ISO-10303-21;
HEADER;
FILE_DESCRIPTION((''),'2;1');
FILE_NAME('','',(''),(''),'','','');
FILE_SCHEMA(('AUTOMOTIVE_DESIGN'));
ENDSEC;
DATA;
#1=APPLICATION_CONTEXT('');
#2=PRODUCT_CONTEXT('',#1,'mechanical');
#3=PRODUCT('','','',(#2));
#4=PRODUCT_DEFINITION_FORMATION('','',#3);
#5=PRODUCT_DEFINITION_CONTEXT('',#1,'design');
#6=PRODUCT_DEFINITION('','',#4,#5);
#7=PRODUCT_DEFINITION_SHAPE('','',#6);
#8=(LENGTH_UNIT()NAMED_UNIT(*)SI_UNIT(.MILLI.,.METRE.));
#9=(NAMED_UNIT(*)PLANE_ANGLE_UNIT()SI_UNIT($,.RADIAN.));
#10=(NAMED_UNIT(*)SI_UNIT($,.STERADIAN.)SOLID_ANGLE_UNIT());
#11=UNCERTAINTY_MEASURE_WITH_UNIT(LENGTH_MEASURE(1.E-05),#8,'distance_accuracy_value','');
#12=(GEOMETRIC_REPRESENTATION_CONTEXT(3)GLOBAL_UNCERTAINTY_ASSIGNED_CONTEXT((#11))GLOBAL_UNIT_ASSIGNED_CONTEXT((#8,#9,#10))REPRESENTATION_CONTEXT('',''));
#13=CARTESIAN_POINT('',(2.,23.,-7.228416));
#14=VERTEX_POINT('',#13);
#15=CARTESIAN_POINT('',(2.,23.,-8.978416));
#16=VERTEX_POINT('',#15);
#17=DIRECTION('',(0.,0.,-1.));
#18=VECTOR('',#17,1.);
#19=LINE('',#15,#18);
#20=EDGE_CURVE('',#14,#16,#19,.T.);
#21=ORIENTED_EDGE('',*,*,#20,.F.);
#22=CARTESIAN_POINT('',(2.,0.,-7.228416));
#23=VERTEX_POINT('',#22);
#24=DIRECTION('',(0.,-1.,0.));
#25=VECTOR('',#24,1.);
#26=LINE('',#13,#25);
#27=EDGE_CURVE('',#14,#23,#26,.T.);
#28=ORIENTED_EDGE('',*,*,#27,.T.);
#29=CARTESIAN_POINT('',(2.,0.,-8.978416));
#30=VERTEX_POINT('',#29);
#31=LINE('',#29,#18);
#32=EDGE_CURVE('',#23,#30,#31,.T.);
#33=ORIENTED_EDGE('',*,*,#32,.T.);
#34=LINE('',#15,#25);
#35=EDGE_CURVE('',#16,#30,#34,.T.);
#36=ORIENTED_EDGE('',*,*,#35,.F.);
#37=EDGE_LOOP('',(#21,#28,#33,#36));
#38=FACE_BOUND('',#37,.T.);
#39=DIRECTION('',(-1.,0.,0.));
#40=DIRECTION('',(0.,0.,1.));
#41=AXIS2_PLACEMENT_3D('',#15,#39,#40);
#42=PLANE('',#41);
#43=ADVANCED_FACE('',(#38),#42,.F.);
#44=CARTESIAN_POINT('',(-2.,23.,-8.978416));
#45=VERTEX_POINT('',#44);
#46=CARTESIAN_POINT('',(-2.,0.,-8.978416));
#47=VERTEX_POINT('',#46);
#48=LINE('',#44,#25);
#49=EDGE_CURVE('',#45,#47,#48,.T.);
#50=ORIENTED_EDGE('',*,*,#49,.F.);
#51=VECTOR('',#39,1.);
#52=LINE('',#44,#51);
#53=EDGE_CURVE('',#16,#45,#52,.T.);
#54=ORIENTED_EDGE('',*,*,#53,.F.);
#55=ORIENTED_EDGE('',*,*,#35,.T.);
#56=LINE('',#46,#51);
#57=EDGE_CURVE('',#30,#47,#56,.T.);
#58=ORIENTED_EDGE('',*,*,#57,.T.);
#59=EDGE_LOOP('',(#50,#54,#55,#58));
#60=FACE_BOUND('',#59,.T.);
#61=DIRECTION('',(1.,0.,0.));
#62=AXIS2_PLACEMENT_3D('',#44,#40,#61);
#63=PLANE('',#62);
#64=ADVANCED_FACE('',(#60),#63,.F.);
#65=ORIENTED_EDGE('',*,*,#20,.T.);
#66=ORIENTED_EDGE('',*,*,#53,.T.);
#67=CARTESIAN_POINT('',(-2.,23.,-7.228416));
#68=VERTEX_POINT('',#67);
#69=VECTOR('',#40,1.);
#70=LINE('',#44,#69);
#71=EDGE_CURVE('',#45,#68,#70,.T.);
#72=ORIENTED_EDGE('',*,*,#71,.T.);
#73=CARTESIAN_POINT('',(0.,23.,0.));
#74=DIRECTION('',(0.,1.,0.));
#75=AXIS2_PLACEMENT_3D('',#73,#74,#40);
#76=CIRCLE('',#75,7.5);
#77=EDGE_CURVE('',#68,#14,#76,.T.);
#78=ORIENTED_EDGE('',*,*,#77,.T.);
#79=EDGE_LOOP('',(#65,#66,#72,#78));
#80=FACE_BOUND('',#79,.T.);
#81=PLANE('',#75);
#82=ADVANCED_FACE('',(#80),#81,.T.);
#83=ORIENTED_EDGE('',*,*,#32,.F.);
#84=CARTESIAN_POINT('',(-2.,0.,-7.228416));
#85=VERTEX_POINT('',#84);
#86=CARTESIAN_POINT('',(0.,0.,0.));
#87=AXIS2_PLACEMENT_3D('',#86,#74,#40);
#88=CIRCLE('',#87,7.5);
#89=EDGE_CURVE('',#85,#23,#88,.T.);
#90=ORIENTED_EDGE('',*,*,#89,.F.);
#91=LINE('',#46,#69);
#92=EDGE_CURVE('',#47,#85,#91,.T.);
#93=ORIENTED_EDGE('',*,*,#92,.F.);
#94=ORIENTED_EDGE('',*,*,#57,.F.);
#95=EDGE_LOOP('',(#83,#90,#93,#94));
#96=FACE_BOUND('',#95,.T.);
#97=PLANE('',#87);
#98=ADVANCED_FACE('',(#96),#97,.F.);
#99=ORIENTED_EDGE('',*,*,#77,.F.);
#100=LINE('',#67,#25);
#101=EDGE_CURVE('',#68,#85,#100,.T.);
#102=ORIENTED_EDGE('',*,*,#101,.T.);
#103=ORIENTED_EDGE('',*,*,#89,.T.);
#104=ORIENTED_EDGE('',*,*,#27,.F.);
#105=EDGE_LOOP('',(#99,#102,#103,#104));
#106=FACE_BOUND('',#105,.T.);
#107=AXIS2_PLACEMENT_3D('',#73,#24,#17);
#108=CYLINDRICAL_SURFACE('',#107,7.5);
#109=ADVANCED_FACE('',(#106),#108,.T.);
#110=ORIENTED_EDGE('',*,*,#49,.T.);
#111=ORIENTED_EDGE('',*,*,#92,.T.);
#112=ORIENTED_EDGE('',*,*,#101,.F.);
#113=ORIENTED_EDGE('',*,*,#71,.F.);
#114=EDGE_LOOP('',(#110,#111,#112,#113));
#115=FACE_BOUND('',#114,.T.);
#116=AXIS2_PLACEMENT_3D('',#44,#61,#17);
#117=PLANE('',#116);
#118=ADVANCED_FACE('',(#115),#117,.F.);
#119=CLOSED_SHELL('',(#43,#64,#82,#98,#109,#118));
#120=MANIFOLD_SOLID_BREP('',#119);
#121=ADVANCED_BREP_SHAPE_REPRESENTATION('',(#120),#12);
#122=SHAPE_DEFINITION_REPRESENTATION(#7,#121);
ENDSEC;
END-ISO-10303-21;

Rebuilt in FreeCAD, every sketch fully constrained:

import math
import FreeCAD as App
import Part
import Sketcher

doc = App.newDocument("Part")
body = doc.addObject("PartDesign::Body", "Body")

# Sketch on XZ plane
sketch1 = doc.addObject("Sketcher::SketchObject", "Sketch")
body.addObject(sketch1)
sketch1.AttachmentSupport = (doc.XZ_Plane, [""])
sketch1.MapMode = "FlatFace"
sketch1.addGeometry([
    Part.LineSegment(App.Vector(2, -9, 0), App.Vector(-2, -9, 0)),
    Part.LineSegment(App.Vector(-2, -9, 0), App.Vector(-2, -7.2, 0)),
    Part.ArcOfCircle(Part.Circle(App.Vector(0, 0, 0), App.Vector(0, 0, 1), 7.5), math.radians(-75), math.radians(255)),
    Part.LineSegment(App.Vector(2, -7.2, 0), App.Vector(2, -9, 0)),
], False)
sketch1.addConstraint([
    Sketcher.Constraint("Coincident", 0, 2, 1, 1),
    Sketcher.Constraint("Coincident", 1, 2, 2, 2),
    Sketcher.Constraint("Coincident", 2, 1, 3, 1),
    Sketcher.Constraint("Coincident", 3, 2, 0, 1),
    Sketcher.Constraint("Horizontal", 0),
    Sketcher.Constraint("Vertical", 1),
    Sketcher.Constraint("Vertical", 3),
    Sketcher.Constraint("Coincident", 2, 3, -1, 1),
    Sketcher.Constraint("Horizontal", 1, 2, 2, 1),
    Sketcher.Constraint("Radius", 2, 7.5),
    Sketcher.Constraint("DistanceX", 0, 2, 0, 1, 4.0),
    Sketcher.Constraint("DistanceY", 1, 1, 1, 2, 1.75),
])
pad1 = doc.addObject("PartDesign::Pad", "Pad")
body.addObject(pad1)
pad1.Profile = sketch1
pad1.Length = 23
pad1.Reversed = True

doc.recompute()
